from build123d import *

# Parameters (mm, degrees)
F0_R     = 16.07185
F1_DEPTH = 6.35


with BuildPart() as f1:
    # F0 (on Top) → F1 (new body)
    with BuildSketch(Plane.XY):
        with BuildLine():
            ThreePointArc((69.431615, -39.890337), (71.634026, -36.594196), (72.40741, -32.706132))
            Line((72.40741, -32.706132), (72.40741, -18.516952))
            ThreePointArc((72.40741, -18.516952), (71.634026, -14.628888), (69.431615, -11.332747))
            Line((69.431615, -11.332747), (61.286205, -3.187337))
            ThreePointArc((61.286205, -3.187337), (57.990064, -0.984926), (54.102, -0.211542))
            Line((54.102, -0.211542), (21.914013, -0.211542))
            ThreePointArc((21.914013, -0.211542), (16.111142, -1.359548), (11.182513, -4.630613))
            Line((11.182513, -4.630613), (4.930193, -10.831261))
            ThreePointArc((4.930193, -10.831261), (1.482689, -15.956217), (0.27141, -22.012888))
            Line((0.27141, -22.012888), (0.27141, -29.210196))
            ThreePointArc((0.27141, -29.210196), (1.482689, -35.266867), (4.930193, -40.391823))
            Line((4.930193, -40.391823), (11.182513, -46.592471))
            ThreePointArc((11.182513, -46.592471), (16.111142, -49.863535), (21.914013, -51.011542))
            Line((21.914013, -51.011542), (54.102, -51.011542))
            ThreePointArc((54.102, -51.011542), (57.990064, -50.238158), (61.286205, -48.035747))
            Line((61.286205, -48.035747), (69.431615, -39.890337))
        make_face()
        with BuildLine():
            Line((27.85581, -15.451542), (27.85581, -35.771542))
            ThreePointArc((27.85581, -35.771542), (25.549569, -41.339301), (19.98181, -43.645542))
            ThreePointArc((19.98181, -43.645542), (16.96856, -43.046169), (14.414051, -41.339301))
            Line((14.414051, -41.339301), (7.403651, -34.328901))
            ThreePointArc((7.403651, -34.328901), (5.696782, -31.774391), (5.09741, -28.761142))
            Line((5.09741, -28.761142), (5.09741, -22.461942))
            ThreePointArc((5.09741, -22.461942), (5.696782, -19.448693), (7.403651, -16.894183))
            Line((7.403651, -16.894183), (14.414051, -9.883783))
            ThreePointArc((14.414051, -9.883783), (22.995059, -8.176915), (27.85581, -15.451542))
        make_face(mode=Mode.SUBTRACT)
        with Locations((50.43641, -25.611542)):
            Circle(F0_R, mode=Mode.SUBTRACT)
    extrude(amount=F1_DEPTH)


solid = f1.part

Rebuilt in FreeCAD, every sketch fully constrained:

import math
import FreeCAD as App
import Part
import Sketcher
from FreeCAD import Vector
Q = App.Units.Quantity

doc = App.newDocument("Part")
body = doc.addObject("PartDesign::Body", "Body")

sketch1 = doc.addObject("Sketcher::SketchObject", "Sketch")
body.addObject(sketch1)
sketch1.AttachmentSupport = (doc.XY_Plane, [""])
sketch1.MapMode = "FlatFace"
sketch1.addGeometry(Part.ArcOfCircle(Part.Circle(Vector(62, -33, 0), Vector(0, 0, 1), 10), math.radians(-45), math.radians(0)), False)
sketch1.addGeometry(Part.LineSegment(Vector(72, -33, 0), Vector(72, -19, 0)), False)
sketch1.addGeometry(Part.ArcOfCircle(Part.Circle(Vector(62, -19, 0), Vector(0, 0, 1), 10), math.radians(0), math.radians(45)), False)
sketch1.addGeometry(Part.LineSegment(Vector(69, -11, 0), Vector(61, -3, 0)), False)
sketch1.addGeometry(Part.ArcOfCircle(Part.Circle(Vector(54, -10, 0), Vector(0, 0, 1), 10), math.radians(45), math.radians(90)), False)
sketch1.addGeometry(Part.LineSegment(Vector(54, 0, 0), Vector(22, 0, 0)), False)
sketch1.addGeometry(Part.ArcOfCircle(Part.Circle(Vector(22, -15, 0), Vector(0, 0, 1), 15), math.radians(90), math.radians(135)), False)
sketch1.addGeometry(Part.LineSegment(Vector(11, -5, 0), Vector(5, -11, 0)), False)
sketch1.addGeometry(Part.ArcOfCircle(Part.Circle(Vector(16, -22, 0), Vector(0, 0, 1), 16), math.radians(135), math.radians(180)), False)
sketch1.addGeometry(Part.LineSegment(Vector(0, -22, 0), Vector(0, -29, 0)), False)
sketch1.addGeometry(Part.ArcOfCircle(Part.Circle(Vector(16, -29, 0), Vector(0, 0, 1), 16), math.radians(180), math.radians(225)), False)
sketch1.addGeometry(Part.LineSegment(Vector(5, -40, 0), Vector(11, -47, 0)), False)
sketch1.addGeometry(Part.ArcOfCircle(Part.Circle(Vector(22, -36, 0), Vector(0, 0, 1), 15), math.radians(-135), math.radians(-90)), False)
sketch1.addGeometry(Part.LineSegment(Vector(22, -51, 0), Vector(54, -51, 0)), False)
sketch1.addGeometry(Part.ArcOfCircle(Part.Circle(Vector(54, -41, 0), Vector(0, 0, 1), 10), math.radians(-90), math.radians(-45)), False)
sketch1.addGeometry(Part.LineSegment(Vector(61, -48, 0), Vector(69, -40, 0)), False)
sketch1.addGeometry(Part.ArcOfCircle(Part.Circle(Vector(20, -15, 0), Vector(0, 0, 1), 8), math.radians(0), math.radians(135)), False)
sketch1.addGeometry(Part.LineSegment(Vector(28, -15, 0), Vector(28, -36, 0)), False)
sketch1.addGeometry(Part.ArcOfCircle(Part.Circle(Vector(20, -36, 0), Vector(0, 0, 1), 8), math.radians(-90), math.radians(0)), False)
sketch1.addGeometry(Part.ArcOfCircle(Part.Circle(Vector(20, -36, 0), Vector(0, 0, 1), 8), math.radians(-135), math.radians(-90)), False)
sketch1.addGeometry(Part.LineSegment(Vector(14, -41, 0), Vector(7, -34, 0)), False)
sketch1.addGeometry(Part.ArcOfCircle(Part.Circle(Vector(13, -29, 0), Vector(0, 0, 1), 8), math.radians(180), math.radians(225)), False)
sketch1.addGeometry(Part.LineSegment(Vector(5, -29, 0), Vector(5, -22, 0)), False)
sketch1.addGeometry(Part.ArcOfCircle(Part.Circle(Vector(13, -22, 0), Vector(0, 0, 1), 8), math.radians(135), math.radians(180)), False)
sketch1.addGeometry(Part.LineSegment(Vector(7, -17, 0), Vector(14, -10, 0)), False)
sketch1.addGeometry(Part.Circle(Vector(50, -26, 0), Vector(0, 0, 1), 16), False)
sketch1.addConstraint(Sketcher.Constraint("Tangent", 0, 2, 1, 1))
sketch1.addConstraint(Sketcher.Constraint("Tangent", 1, 2, 2, 1))
sketch1.addConstraint(Sketcher.Constraint("Tangent", 2, 2, 3, 1))
sketch1.addConstraint(Sketcher.Constraint("Tangent", 3, 2, 4, 1))
sketch1.addConstraint(Sketcher.Constraint("Tangent", 4, 2, 5, 1))
sketch1.addConstraint(Sketcher.Constraint("Tangent", 5, 2, 6, 1))
sketch1.addConstraint(Sketcher.Constraint("Tangent", 6, 2, 7, 1))
sketch1.addConstraint(Sketcher.Constraint("Tangent", 7, 2, 8, 1))
sketch1.addConstraint(Sketcher.Constraint("Tangent", 8, 2, 9, 1))
sketch1.addConstraint(Sketcher.Constraint("Tangent", 9, 2, 10, 1))
sketch1.addConstraint(Sketcher.Constraint("Tangent", 10, 2, 11, 1))
sketch1.addConstraint(Sketcher.Constraint("Tangent", 11, 2, 12, 1))
sketch1.addConstraint(Sketcher.Constraint("Tangent", 12, 2, 13, 1))
sketch1.addConstraint(Sketcher.Constraint("Tangent", 13, 2, 14, 1))
sketch1.addConstraint(Sketcher.Constraint("Tangent", 14, 2, 15, 1))
sketch1.addConstraint(Sketcher.Constraint("Tangent", 15, 2, 0, 1))
sketch1.addConstraint(Sketcher.Constraint("Tangent", 16, 1, 17, 1))
sketch1.addConstraint(Sketcher.Constraint("Tangent", 17, 2, 18, 2))
sketch1.addConstraint(Sketcher.Constraint("Tangent", 18, 1, 19, 2))
sketch1.addConstraint(Sketcher.Constraint("Tangent", 19, 1, 20, 1))
sketch1.addConstraint(Sketcher.Constraint("Tangent", 20, 2, 21, 2))
sketch1.addConstraint(Sketcher.Constraint("Tangent", 21, 1, 22, 1))
sketch1.addConstraint(Sketcher.Constraint("Tangent", 22, 2, 23, 2))
sketch1.addConstraint(Sketcher.Constraint("Tangent", 23, 1, 24, 1))
sketch1.addConstraint(Sketcher.Constraint("Tangent", 24, 2, 16, 2))
sketch1.addConstraint(Sketcher.Constraint("Vertical", 1))
sketch1.addConstraint(Sketcher.Constraint("Horizontal", 5))
sketch1.addConstraint(Sketcher.Constraint("Vertical", 9))
sketch1.addConstraint(Sketcher.Constraint("Horizontal", 13))
sketch1.addConstraint(Sketcher.Constraint("Vertical", 17))
sketch1.addConstraint(Sketcher.Constraint("Vertical", 22))
sketch1.addConstraint(Sketcher.Constraint("Equal", 0, 2))
sketch1.addConstraint(Sketcher.Constraint("Equal", 2, 4))
sketch1.addConstraint(Sketcher.Constraint("Equal", 8, 10))
sketch1.addConstraint(Sketcher.Constraint("Equal", 4, 14))
sketch1.addConstraint(Sketcher.Constraint("Equal", 16, 18))
sketch1.addConstraint(Sketcher.Constraint("Equal", 21, 23))
sketch1.addConstraint(Sketcher.Constraint("Perpendicular", 3, 15))
sketch1.addConstraint(Sketcher.Constraint("Perpendicular", 15, 20))
sketch1.addConstraint(Sketcher.Constraint("Perpendicular", 20, 24))
sketch1.addConstraint(Sketcher.Constraint("Vertical", 4, 3, 14, 3))
sketch1.addConstraint(Sketcher.Constraint("Vertical", 7, 2, 10, 2))
sketch1.addConstraint(Sketcher.Constraint("Vertical", 6, 2, 11, 2))
sketch1.addConstraint(Sketcher.Constraint("Vertical", 5, 2, 12, 2))
sketch1.addConstraint(Sketcher.Constraint("Vertical", 3, 2, 14, 2))
sketch1.addConstraint(Sketcher.Constraint("Vertical", 19, 3, 18, 1))
sketch1.addConstraint(Sketcher.Constraint("Vertical", 19, 1, 24, 2))
sketch1.addConstraint(Sketcher.Constraint("Radius", 0, Q("0.4 in")))
sketch1.addConstraint(Sketcher.Constraint("Radius", 6, Q("0.5999999 in")))
sketch1.addConstraint(Sketcher.Constraint("Radius", 8, Q("0.6199998 in")))
sketch1.addConstraint(Sketcher.Constraint("Radius", 16, Q("0.31 in")))
sketch1.addConstraint(Sketcher.Constraint("Radius", 21, Q("0.3099999 in")))
sketch1.addConstraint(Sketcher.Constraint("DistanceY", 17, 2, 17, 1, Q("0.8 in")))
sketch1.addConstraint(Sketcher.Constraint("DistanceY", 25, 3, 4, 2, Q("1 in")))
sketch1.addConstraint(Sketcher.Constraint("DistanceY", 13, 2, 25, 3, Q("1 in")))
sketch1.addConstraint(Sketcher.Constraint("Diameter", 25, Q("1.2655 in")))
sketch1.addConstraint(Sketcher.Constraint("DistanceY", 16, 3, 4, 3, Q("0.2 in")))
sketch1.addConstraint(Sketcher.Constraint("DistanceX", 8, 2, 23, 3, Q("0.4999999 in")))
sketch1.addConstraint(Sketcher.Constraint("DistanceY", 22, 1, 22, 2, Q("0.248 in")))
sketch1.addConstraint(Sketcher.Constraint("DistanceX", -1, 1, 4, 3, Q("2.13 in")))
sketch1.addConstraint(Sketcher.Constraint("DistanceX", 8, 3, 2, 3, Q("1.8200002 in")))
sketch1.addConstraint(Sketcher.Constraint("DistanceX", 25, 3, 2, 3, Q("0.465 in")))
sketch1.addConstraint(Sketcher.Constraint("DistanceX", 6, 2, 5, 2, Q("0.4225 in")))
sketch1.addConstraint(Sketcher.Constraint("DistanceY", 1, 1, 1, 2, Q("14.18918 mm")))
sketch1.addConstraint(Sketcher.Constraint("DistanceY", 10, 3, -1, 1, Q("29.210198 mm")))
sketch1.addConstraint(Sketcher.Constraint("DistanceY", 19, 1, -1, 1, Q("41.339301 mm")))
pad1 = doc.addObject("PartDesign::Pad", "Pad")
body.addObject(pad1)
pad1.Profile = sketch1
pad1.Length = Q("0.25 in")

doc.recompute()
